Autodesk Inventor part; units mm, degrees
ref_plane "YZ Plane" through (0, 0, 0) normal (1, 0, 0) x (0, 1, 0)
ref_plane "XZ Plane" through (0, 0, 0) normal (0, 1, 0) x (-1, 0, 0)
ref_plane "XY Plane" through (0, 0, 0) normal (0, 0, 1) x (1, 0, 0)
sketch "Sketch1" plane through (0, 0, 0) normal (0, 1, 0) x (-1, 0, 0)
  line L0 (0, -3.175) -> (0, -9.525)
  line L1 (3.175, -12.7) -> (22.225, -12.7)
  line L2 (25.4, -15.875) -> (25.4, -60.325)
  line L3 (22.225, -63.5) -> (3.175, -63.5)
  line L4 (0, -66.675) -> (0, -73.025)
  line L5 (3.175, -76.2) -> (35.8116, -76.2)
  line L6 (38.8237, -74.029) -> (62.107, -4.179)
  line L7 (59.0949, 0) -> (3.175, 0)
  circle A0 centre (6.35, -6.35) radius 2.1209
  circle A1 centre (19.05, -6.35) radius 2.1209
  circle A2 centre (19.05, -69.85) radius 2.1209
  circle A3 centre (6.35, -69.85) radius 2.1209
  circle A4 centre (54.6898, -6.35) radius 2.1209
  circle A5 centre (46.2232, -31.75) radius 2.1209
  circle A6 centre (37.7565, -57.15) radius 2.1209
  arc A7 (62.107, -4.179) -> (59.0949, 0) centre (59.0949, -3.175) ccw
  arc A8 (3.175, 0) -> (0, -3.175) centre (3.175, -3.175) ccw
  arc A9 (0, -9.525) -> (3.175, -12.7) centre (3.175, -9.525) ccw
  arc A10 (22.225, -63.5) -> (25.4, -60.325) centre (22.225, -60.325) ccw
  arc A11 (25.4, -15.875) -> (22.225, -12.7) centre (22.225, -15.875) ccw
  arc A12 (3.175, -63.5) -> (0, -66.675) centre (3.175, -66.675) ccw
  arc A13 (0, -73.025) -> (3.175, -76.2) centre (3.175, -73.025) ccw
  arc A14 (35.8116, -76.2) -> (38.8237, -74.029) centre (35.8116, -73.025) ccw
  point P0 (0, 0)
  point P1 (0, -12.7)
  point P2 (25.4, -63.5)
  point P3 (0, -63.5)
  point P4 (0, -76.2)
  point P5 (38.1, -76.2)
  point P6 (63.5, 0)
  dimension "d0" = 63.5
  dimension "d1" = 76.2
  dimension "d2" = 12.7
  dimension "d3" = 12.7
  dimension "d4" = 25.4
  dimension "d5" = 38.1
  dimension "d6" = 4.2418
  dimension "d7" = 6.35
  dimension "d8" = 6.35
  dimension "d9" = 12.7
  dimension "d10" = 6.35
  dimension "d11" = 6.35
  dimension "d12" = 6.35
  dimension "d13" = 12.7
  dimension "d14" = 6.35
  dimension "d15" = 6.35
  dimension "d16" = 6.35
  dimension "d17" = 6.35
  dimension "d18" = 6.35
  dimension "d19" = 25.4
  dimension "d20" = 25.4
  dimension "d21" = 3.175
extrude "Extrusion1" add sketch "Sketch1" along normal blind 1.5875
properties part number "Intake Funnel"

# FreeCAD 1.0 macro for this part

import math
import FreeCAD as App
import Part
import Sketcher
Q = App.Units.Quantity

doc = App.newDocument("Part")
params = doc.addObject("Spreadsheet::Sheet", "Params")
for row, (alias, value) in enumerate([
    ("sketch1_diameter", "0.167 in"),
    ("sketch1_radius", "0.125 in"),
    ("sketch1_height", "0.25 in"),
    ("pad1_length", "0.0625 in"),
], start=1):
    params.set(f"A{row}", alias)
    params.set(f"B{row}", "=" + value)
    params.setAlias(f"B{row}", alias)

body = doc.addObject("PartDesign::Body", "Body")

sketch1 = body.newObject("Sketcher::SketchObject", "Sketch")
sketch1.AttachmentSupport = (doc.getObject("XZ_Plane"), [""])
sketch1.MapMode = "FlatFace"
sketch1.addGeometry(Part.ArcOfCircle(Part.Circle(App.Vector(-3.2, -3.2, 0), App.Vector(0, 0, 1), 3.2), math.radians(0), math.radians(90)), False)
sketch1.addGeometry(Part.LineSegment(App.Vector(0, -3.2, 0), App.Vector(0, -9.5, 0)), False)
sketch1.addGeometry(Part.ArcOfCircle(Part.Circle(App.Vector(-3.2, -9.5, 0), App.Vector(0, 0, 1), 3.2), math.radians(-90), math.radians(0)), False)
sketch1.addGeometry(Part.LineSegment(App.Vector(-3.2, -12.7, 0), App.Vector(-22.2, -12.7, 0)), False)
sketch1.addGeometry(Part.ArcOfCircle(Part.Circle(App.Vector(-22.2, -15.9, 0), App.Vector(0, 0, 1), 3.2), math.radians(90), math.radians(180)), False)
sketch1.addGeometry(Part.LineSegment(App.Vector(-25.4, -15.9, 0), App.Vector(-25.4, -60.3, 0)), False)
sketch1.addGeometry(Part.ArcOfCircle(Part.Circle(App.Vector(-22.2, -60.3, 0), App.Vector(0, 0, 1), 3.2), math.radians(180), math.radians(270)), False)
sketch1.addGeometry(Part.LineSegment(App.Vector(-22.2, -63.5, 0), App.Vector(-3.2, -63.5, 0)), False)
sketch1.addGeometry(Part.ArcOfCircle(Part.Circle(App.Vector(-3.2, -66.7, 0), App.Vector(0, 0, 1), 3.2), math.radians(0), math.radians(90)), False)
sketch1.addGeometry(Part.LineSegment(App.Vector(0, -66.7, 0), App.Vector(0, -73, 0)), False)
sketch1.addGeometry(Part.ArcOfCircle(Part.Circle(App.Vector(-3.2, -73, 0), App.Vector(0, 0, 1), 3.2), math.radians(-90), math.radians(0)), False)
sketch1.addGeometry(Part.LineSegment(App.Vector(-3.2, -76.2, 0), App.Vector(-35.8, -76.2, 0)), False)
sketch1.addGeometry(Part.ArcOfCircle(Part.Circle(App.Vector(-35.8, -73, 0), App.Vector(0, 0, 1), 3.2), math.radians(-162), math.radians(-90)), False)
sketch1.addGeometry(Part.LineSegment(App.Vector(-38.8, -74, 0), App.Vector(-62.1, -4.2, 0)), False)
sketch1.addGeometry(Part.ArcOfCircle(Part.Circle(App.Vector(-59.1, -3.2, 0), App.Vector(0, 0, 1), 3.2), math.radians(90), math.radians(198)), False)
sketch1.addGeometry(Part.LineSegment(App.Vector(-59.1, 0, 0), App.Vector(-3.2, 0, 0)), False)
sketch1.addGeometry(Part.Circle(App.Vector(-6.3, -69.8, 0), App.Vector(0, 0, 1), 2.1), False)
sketch1.addGeometry(Part.Circle(App.Vector(-19.1, -69.8, 0), App.Vector(0, 0, 1), 2.1), False)
sketch1.addGeometry(Part.Circle(App.Vector(-37.8, -57.1, 0), App.Vector(0, 0, 1), 2.1), False)
sketch1.addGeometry(Part.Circle(App.Vector(-6.3, -6.3, 0), App.Vector(0, 0, 1), 2.1), False)
sketch1.addGeometry(Part.Circle(App.Vector(-19.1, -6.3, 0), App.Vector(0, 0, 1), 2.1), False)
sketch1.addGeometry(Part.Circle(App.Vector(-46.2, -31.8, 0), App.Vector(0, 0, 1), 2.1), False)
sketch1.addGeometry(Part.Circle(App.Vector(-54.7, -6.3, 0), App.Vector(0, 0, 1), 2.1), False)
sketch1.addConstraint(Sketcher.Constraint("Tangent", 0, 1, 1, 1))
sketch1.addConstraint(Sketcher.Constraint("Tangent", 1, 2, 2, 2))
sketch1.addConstraint(Sketcher.Constraint("Tangent", 2, 1, 3, 1))
sketch1.addConstraint(Sketcher.Constraint("Tangent", 3, 2, 4, 1))
sketch1.addConstraint(Sketcher.Constraint("Tangent", 4, 2, 5, 1))
sketch1.addConstraint(Sketcher.Constraint("Tangent", 5, 2, 6, 1))
sketch1.addConstraint(Sketcher.Constraint("Tangent", 6, 2, 7, 1))
sketch1.addConstraint(Sketcher.Constraint("Tangent", 7, 2, 8, 2))
sketch1.addConstraint(Sketcher.Constraint("Tangent", 8, 1, 9, 1))
sketch1.addConstraint(Sketcher.Constraint("Tangent", 9, 2, 10, 2))
sketch1.addConstraint(Sketcher.Constraint("Tangent", 10, 1, 11, 1))
sketch1.addConstraint(Sketcher.Constraint("Tangent", 11, 2, 12, 2))
sketch1.addConstraint(Sketcher.Constraint("Tangent", 12, 1, 13, 1))
sketch1.addConstraint(Sketcher.Constraint("Tangent", 13, 2, 14, 2))
sketch1.addConstraint(Sketcher.Constraint("Tangent", 14, 1, 15, 1))
sketch1.addConstraint(Sketcher.Constraint("Tangent", 15, 2, 0, 2))
sketch1.addConstraint(Sketcher.Constraint("Vertical", 1))
sketch1.addConstraint(Sketcher.Constraint("Horizontal", 3))
sketch1.addConstraint(Sketcher.Constraint("Vertical", 5))
sketch1.addConstraint(Sketcher.Constraint("Horizontal", 7))
sketch1.addConstraint(Sketcher.Constraint("Vertical", 9))
sketch1.addConstraint(Sketcher.Constraint("Horizontal", 11))
sketch1.addConstraint(Sketcher.Constraint("Horizontal", 15))
sketch1.addConstraint(Sketcher.Constraint("Equal", 0, 2))
sketch1.addConstraint(Sketcher.Constraint("Equal", 2, 4))
sketch1.addConstraint(Sketcher.Constraint("Equal", 4, 6))
sketch1.addConstraint(Sketcher.Constraint("Equal", 6, 8))
sketch1.addConstraint(Sketcher.Constraint("Equal", 8, 10))
sketch1.addConstraint(Sketcher.Constraint("Equal", 10, 12))
sketch1.addConstraint(Sketcher.Constraint("Equal", 12, 14))
sketch1.addConstraint(Sketcher.Constraint("Equal", 16, 17))
sketch1.addConstraint(Sketcher.Constraint("Equal", 17, 18))
sketch1.addConstraint(Sketcher.Constraint("Equal", 18, 19))
sketch1.addConstraint(Sketcher.Constraint("Equal", 19, 20))
sketch1.addConstraint(Sketcher.Constraint("Equal", 20, 21))
sketch1.addConstraint(Sketcher.Constraint("Equal", 21, 22))
sketch1.addConstraint(Sketcher.Constraint("PointOnObject", 0, 1, -2))
sketch1.addConstraint(Sketcher.Constraint("PointOnObject", 8, 1, -2))
sketch1.addConstraint(Sketcher.Constraint("PointOnObject", 14, 1, -1))
sketch1.addConstraint(Sketcher.Constraint("Horizontal", 16, 3, 17, 3))
sketch1.addConstraint(Sketcher.Constraint("Horizontal", 19, 3, 20, 3))
sketch1.addConstraint(Sketcher.Constraint("Horizontal", 20, 3, 22, 3))
sketch1.addConstraint(Sketcher.Constraint("Vertical", 16, 3, 19, 3))
sketch1.addConstraint(Sketcher.Constraint("Vertical", 17, 3, 20, 3))
sketch1.addConstraint(Sketcher.Constraint("Equal", 1, 9))
sketch1.addConstraint(Sketcher.Constraint("Diameter", 16, Q("0.167 in")))
sketch1.addConstraint(Sketcher.Constraint("DistanceX", 4, 2, -1, 1, Q("1 in")))
sketch1.addConstraint(Sketcher.Constraint("DistanceY", 10, 1, -1, 1, Q("3 in")))
sketch1.addConstraint(Sketcher.Constraint("Radius", 0, Q("0.125 in")))
sketch1.addConstraint(Sketcher.Constraint("DistanceY", 18, 3, 21, 3, Q("1 in")))
sketch1.addConstraint(Sketcher.Constraint("DistanceY", 21, 3, 20, 3, Q("1 in")))
sketch1.addConstraint(Sketcher.Constraint("DistanceY", 1, 2, 1, 1, Q("0.25 in")))
sketch1.addConstraint(Sketcher.Constraint("DistanceX", 17, 3, 16, 3, Q("0.5 in")))
sketch1.addConstraint(Sketcher.Constraint("DistanceY", 17, 3, 18, 3, Q("0.5 in")))
sketch1.addConstraint(Sketcher.Constraint("DistanceX", 16, 3, -1, 1, Q("0.25 in")))
sketch1.addConstraint(Sketcher.Constraint("DistanceY", 19, 3, -1, 1, Q("0.25 in")))
sketch1.addConstraint(Sketcher.Constraint("DistanceX", 11, 2, 11, 1, Q("1.2849 in")))
sketch1.addConstraint(Sketcher.Constraint("DistanceX", 15, 1, 15, 2, 55.92))
sketch1.addConstraint(Sketcher.Constraint("DistanceX", 21, 3, -1, 1, Q("1.8198 in")))
sketch1.addConstraint(Sketcher.Constraint("DistanceX", 18, 3, -1, 1, 37.7565))
sketch1.addConstraint(Sketcher.Constraint("DistanceX", 22, 3, -1, 1, 54.6898))
sketch1.setExpression("Constraints[45]", "Params.sketch1_diameter")
sketch1.setExpression("Constraints[48]", "Params.sketch1_radius")
sketch1.setExpression("Constraints[51]", "Params.sketch1_height")
pad1 = body.newObject("PartDesign::Pad", "Pad")
pad1.Profile = sketch1
pad1.setExpression("Length", "Params.pad1_length")
pad1.Reversed = True

doc.recompute()
